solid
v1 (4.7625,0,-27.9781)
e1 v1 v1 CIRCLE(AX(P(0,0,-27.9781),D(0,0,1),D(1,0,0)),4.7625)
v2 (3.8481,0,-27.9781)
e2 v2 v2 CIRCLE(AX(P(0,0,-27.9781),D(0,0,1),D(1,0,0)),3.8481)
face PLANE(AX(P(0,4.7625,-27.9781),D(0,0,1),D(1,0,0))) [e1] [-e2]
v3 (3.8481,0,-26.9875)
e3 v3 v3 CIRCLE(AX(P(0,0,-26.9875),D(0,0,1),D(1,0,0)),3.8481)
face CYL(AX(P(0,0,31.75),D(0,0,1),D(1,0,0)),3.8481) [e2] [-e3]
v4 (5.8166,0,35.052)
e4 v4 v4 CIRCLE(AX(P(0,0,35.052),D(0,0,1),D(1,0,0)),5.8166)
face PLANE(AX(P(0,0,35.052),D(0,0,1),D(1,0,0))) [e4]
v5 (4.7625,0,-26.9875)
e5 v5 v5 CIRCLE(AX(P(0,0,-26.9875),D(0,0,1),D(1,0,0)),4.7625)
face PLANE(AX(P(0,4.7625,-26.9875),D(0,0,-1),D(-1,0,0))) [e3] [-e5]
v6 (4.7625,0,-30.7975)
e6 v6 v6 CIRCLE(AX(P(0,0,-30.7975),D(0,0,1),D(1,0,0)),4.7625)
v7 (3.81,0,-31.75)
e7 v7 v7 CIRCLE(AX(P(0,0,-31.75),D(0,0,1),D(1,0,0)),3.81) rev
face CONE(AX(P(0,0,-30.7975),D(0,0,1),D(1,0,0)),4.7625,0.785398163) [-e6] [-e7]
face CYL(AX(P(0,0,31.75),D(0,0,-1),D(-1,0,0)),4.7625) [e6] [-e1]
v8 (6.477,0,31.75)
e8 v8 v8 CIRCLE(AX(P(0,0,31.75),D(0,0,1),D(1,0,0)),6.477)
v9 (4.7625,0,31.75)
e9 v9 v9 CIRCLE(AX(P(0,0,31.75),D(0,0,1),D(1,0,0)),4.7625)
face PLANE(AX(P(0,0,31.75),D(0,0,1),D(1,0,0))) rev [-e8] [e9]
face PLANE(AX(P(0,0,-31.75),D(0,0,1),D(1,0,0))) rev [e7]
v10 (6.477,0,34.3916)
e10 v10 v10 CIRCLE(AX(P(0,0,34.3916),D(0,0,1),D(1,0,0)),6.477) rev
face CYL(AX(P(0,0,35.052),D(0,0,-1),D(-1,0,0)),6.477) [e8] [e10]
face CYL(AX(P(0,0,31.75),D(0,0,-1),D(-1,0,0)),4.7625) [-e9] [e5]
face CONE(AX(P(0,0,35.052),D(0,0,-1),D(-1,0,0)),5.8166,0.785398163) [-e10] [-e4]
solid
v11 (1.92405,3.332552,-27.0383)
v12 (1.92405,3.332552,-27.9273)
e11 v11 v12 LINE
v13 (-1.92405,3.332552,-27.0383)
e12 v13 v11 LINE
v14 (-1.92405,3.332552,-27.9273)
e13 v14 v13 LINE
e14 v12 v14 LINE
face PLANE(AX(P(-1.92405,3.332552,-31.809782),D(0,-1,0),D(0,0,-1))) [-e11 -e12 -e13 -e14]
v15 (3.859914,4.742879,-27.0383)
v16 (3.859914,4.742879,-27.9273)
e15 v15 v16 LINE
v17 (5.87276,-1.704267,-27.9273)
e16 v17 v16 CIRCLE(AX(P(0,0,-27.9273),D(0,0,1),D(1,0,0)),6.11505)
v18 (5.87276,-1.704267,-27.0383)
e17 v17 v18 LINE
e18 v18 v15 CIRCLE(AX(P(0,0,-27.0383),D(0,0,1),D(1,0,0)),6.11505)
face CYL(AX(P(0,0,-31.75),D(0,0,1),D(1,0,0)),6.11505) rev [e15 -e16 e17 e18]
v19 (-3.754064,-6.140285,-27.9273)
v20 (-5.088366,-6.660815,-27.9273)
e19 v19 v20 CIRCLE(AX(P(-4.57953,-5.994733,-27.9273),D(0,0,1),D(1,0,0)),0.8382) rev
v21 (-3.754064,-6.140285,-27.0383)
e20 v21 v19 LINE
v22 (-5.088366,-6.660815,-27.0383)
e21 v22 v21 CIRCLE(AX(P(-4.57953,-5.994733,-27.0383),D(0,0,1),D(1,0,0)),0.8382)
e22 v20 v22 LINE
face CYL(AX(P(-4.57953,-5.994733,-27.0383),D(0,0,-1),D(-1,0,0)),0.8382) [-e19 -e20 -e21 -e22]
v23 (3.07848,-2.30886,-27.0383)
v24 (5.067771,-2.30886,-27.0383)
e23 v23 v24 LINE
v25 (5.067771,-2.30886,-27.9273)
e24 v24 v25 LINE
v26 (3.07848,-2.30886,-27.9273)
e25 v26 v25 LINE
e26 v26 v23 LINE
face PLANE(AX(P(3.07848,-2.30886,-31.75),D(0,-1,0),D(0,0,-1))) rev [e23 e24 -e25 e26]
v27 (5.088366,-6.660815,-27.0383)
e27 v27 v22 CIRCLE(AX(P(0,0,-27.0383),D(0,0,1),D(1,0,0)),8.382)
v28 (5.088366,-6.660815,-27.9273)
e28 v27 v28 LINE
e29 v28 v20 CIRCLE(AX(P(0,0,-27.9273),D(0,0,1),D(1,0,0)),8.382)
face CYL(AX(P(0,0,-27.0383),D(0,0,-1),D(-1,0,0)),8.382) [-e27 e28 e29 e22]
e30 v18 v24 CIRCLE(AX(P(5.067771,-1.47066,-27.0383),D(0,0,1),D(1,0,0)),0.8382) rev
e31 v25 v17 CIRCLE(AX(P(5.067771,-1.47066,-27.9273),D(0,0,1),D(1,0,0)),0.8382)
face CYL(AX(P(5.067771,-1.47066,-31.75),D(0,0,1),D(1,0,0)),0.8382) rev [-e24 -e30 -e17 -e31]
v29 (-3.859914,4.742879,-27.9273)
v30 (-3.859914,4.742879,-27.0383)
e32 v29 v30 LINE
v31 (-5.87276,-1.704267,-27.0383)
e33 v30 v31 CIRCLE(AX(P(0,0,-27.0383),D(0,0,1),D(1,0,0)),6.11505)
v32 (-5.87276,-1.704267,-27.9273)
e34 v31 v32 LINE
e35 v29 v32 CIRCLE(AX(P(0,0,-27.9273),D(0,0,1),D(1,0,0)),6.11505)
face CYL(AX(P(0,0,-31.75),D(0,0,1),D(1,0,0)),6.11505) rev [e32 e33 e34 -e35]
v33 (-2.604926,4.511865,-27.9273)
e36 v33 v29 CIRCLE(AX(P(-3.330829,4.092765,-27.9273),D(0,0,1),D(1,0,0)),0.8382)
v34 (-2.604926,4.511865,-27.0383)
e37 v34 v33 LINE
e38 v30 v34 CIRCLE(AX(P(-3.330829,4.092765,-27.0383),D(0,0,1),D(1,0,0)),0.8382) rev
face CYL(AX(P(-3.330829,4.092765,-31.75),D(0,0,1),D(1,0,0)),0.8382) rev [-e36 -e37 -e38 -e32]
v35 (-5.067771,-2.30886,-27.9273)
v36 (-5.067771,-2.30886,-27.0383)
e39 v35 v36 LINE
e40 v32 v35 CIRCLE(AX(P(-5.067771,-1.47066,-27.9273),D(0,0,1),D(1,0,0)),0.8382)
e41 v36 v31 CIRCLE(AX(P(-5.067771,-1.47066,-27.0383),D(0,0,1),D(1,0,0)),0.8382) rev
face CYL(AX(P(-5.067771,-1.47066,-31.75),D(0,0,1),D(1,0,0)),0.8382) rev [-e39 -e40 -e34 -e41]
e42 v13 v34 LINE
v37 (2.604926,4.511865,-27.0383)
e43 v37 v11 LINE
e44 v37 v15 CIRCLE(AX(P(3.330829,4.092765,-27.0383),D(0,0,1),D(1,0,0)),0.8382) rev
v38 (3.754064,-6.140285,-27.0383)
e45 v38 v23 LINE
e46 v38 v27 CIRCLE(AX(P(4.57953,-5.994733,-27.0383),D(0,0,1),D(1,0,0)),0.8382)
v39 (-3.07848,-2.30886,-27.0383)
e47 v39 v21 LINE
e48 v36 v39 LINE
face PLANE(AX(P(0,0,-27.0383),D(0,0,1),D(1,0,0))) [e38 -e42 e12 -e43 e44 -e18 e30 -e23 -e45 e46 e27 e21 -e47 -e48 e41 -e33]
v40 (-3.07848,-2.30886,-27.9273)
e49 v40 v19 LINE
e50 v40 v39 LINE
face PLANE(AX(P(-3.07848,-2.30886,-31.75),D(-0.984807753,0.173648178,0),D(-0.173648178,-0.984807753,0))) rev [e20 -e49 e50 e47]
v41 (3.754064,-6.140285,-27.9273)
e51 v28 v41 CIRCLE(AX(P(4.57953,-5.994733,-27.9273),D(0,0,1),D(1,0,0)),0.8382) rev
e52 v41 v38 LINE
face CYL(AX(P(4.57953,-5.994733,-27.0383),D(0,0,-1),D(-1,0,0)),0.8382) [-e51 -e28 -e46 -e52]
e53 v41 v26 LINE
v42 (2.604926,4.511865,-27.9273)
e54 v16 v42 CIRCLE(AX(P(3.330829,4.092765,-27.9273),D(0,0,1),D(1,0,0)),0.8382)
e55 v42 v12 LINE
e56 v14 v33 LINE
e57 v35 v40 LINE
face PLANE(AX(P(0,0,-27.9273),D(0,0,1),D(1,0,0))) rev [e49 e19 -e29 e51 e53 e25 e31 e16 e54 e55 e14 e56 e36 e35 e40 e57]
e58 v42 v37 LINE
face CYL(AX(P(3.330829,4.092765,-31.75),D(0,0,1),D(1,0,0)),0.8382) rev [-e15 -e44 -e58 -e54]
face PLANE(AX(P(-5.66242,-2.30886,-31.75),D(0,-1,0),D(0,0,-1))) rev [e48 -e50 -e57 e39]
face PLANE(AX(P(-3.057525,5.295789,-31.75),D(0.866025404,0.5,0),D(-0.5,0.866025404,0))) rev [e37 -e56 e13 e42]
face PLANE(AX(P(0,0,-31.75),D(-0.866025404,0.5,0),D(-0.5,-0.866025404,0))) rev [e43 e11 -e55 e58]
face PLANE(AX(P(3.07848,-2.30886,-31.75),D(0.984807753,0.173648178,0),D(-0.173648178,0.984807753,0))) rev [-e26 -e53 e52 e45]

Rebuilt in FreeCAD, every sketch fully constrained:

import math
import FreeCAD as App
import Part
import Sketcher
Q = App.Units.Quantity


def edges_at(feature, points):
    """Names of the edges that pass closest to the given points."""
    edges = feature.Shape.Edges
    near = lambda p: min(range(len(edges)), key=lambda i: edges[i].distToShape(Part.Vertex(*p))[0])
    return sorted({f"Edge{near(p) + 1}" for p in points})

doc = App.newDocument("Part")
params = doc.addObject("Spreadsheet::Sheet", "Params")
for row, (alias, value) in enumerate([
    ("sketch1_diameter", "0.375 in"),
    ("pad1_length", "2.5 in"),
    ("sketch2_width", "0.036 in"),
    ("sketch2_height", "0.039 in"),
    ("groove_angle", "360 deg"),
    ("sketch3_diameter", "0.51 in"),
    ("pad2_length", "0.13 in"),
    ("chamfer_size", "0.026 in"),
    ("chamfer2_size", "0.0375 in"),
    ("sketch4_diameter", "0.66 in"),
    ("sketch4_diameter2", "0.303 in"),
    ("pad3_length", "0.035 in"),
    ("sketch5_radius", "0.33 in"),
    ("pad4_length", "0.035 in"),
    ("fillet_radius", "0.033 in"),
], start=1):
    params.set(f"A{row}", alias)
    params.set(f"B{row}", "=" + value)
    params.setAlias(f"B{row}", alias)

body = doc.addObject("PartDesign::Body", "Body")

# Sketch on XY plane
sketch1 = doc.addObject("Sketcher::SketchObject", "Sketch")
body.addObject(sketch1)
sketch1.AttachmentSupport = (doc.XY_Plane, [""])
sketch1.MapMode = "FlatFace"
sketch1.addGeometry(Part.Circle(App.Vector(0, 0, 0), App.Vector(0, 0, 1), 4.7625), False)
sketch1.addConstraint(Sketcher.Constraint("Coincident", 0, 3, -1, 1))
sketch1.addConstraint(Sketcher.Constraint("Diameter", 0, Q("0.375 in")))
sketch1.setExpression("Constraints[1]", "Params.sketch1_diameter")
pad1 = doc.addObject("PartDesign::Pad", "Pad")
body.addObject(pad1)
pad1.Profile = sketch1
pad1.setExpression("Length", "Params.pad1_length")
pad1.Midplane = True

# Sketch on YZ plane
sketch2 = doc.addObject("Sketcher::SketchObject", "Sketch001")
body.addObject(sketch2)
sketch2.AttachmentSupport = (doc.YZ_Plane, [""])
sketch2.MapMode = "FlatFace"
sketch2.addGeometry(Part.LineSegment(App.Vector(4.7625, -26.9875, 0), App.Vector(3.8481, -26.9875, 0)), False)
sketch2.addGeometry(Part.LineSegment(App.Vector(3.8481, -26.9875, 0), App.Vector(3.8481, -27.9781, 0)), False)
sketch2.addGeometry(Part.LineSegment(App.Vector(3.8481, -27.9781, 0), App.Vector(4.7625, -27.9781, 0)), False)
sketch2.addGeometry(Part.LineSegment(App.Vector(4.7625, -27.9781, 0), App.Vector(4.7625, -26.9875, 0)), False)
sketch2.addConstraint(Sketcher.Constraint("Coincident", 0, 2, 1, 1))
sketch2.addConstraint(Sketcher.Constraint("Coincident", 1, 2, 2, 1))
sketch2.addConstraint(Sketcher.Constraint("Coincident", 2, 2, 3, 1))
sketch2.addConstraint(Sketcher.Constraint("Coincident", 3, 2, 0, 1))
sketch2.addConstraint(Sketcher.Constraint("Horizontal", 0))
sketch2.addConstraint(Sketcher.Constraint("Vertical", 1))
sketch2.addConstraint(Sketcher.Constraint("Horizontal", 2))
sketch2.addConstraint(Sketcher.Constraint("Vertical", 3))
sketch2.addConstraint(Sketcher.Constraint("DistanceX", 0, 2, 0, 1, Q("0.036 in")))
sketch2.addConstraint(Sketcher.Constraint("DistanceY", 1, 2, 1, 1, Q("0.039 in")))
sketch2.addConstraint(Sketcher.Constraint("DistanceY", 0, 2, -1, 1, Q("1.0625 in")))
sketch2.addConstraint(Sketcher.Constraint("DistanceX", -1, 1, 2, 2, Q("0.1875 in")))
sketch2.setExpression("Constraints[8]", "Params.sketch2_width")
sketch2.setExpression("Constraints[9]", "Params.sketch2_height")
groove = doc.addObject("PartDesign::Groove", "Groove")
body.addObject(groove)
groove.Profile = sketch2
groove.ReferenceAxis = (sketch2, ["V_Axis"])
groove.setExpression("Angle", "Params.groove_angle")

# Sketch on XY plane
sketch3 = doc.addObject("Sketcher::SketchObject", "Sketch002")
body.addObject(sketch3)
sketch3.AttachmentSupport = (doc.XY_Plane, [""])
sketch3.MapMode = "FlatFace"
sketch3.AttachmentOffset = App.Placement(App.Vector(0, 0, 1.25 * 25.4), App.Rotation())
sketch3.addGeometry(Part.Circle(App.Vector(0, 0, 0), App.Vector(0, 0, 1), 6.477), False)
sketch3.addConstraint(Sketcher.Constraint("Coincident", 0, 3, -1, 1))
sketch3.addConstraint(Sketcher.Constraint("Diameter", 0, Q("0.51 in")))
sketch3.setExpression("Constraints[1]", "Params.sketch3_diameter")
pad2 = doc.addObject("PartDesign::Pad", "Pad001")
body.addObject(pad2)
pad2.Profile = sketch3
pad2.setExpression("Length", "Params.pad2_length")
doc.recompute()

chamfer = doc.addObject("PartDesign::Chamfer", "Chamfer")
body.addObject(chamfer)
chamfer.Base = (pad2, edges_at(pad2, [(-6.477, 0, 35.052)]))
chamfer.setExpression("Size", "Params.chamfer_size")
doc.recompute()

chamfer2 = doc.addObject("PartDesign::Chamfer", "Chamfer001")
body.addObject(chamfer2)
chamfer2.Base = (chamfer, edges_at(chamfer, [(-4.763, 0, -31.75)]))
chamfer2.setExpression("Size", "Params.chamfer2_size")
body2 = doc.addObject("PartDesign::Body", "Body001")

# Sketch on XY plane
sketch4 = doc.addObject("Sketcher::SketchObject", "Sketch003")
body2.addObject(sketch4)
sketch4.AttachmentSupport = (doc.getObject("XY_Plane001"), [""])
sketch4.MapMode = "FlatFace"
sketch4.AttachmentOffset = App.Placement(App.Vector(0, 0, -1.082 * 25.4), App.Rotation())
sketch4.addGeometry(Part.Circle(App.Vector(0, 0, 0), App.Vector(0, 0, 1), 8.382), False)
sketch4.addGeometry(Part.Circle(App.Vector(0, 0, 0), App.Vector(0, 0, 1), 3.8481), False)
sketch4.addConstraint(Sketcher.Constraint("Coincident", 0, 3, -1, 1))
sketch4.addConstraint(Sketcher.Constraint("Coincident", 1, 3, -1, 1))
sketch4.addConstraint(Sketcher.Constraint("Diameter", 0, Q("0.66 in")))
sketch4.addConstraint(Sketcher.Constraint("Diameter", 1, Q("0.303 in")))
sketch4.setExpression("Constraints[2]", "Params.sketch4_diameter")
sketch4.setExpression("Constraints[3]", "Params.sketch4_diameter2")
pad3 = doc.addObject("PartDesign::Pad", "Pad002")
body2.addObject(pad3)
pad3.Profile = sketch4
pad3.setExpression("Length", "Params.pad3_length")
pad3.Midplane = True

# Sketch on XY plane
sketch5 = doc.addObject("Sketcher::SketchObject", "Sketch004")
body2.addObject(sketch5)
sketch5.AttachmentSupport = (doc.getObject("XY_Plane001"), [""])
sketch5.MapMode = "FlatFace"
sketch5.addGeometry(Part.LineSegment(App.Vector(0, 0, 0), App.Vector(-3.057525, 5.295789, 0)), False)
sketch5.addGeometry(Part.ArcOfCircle(Part.Circle(App.Vector(0, 0, 0), App.Vector(0, 0, 1), 6.11505), math.radians(120), math.radians(202.18325)), False)
sketch5.addGeometry(Part.LineSegment(App.Vector(-5.66242, -2.30886, 0), App.Vector(-3.07848, -2.30886, 0)), False)
sketch5.addGeometry(Part.LineSegment(App.Vector(-3.07848, -2.30886, 0), App.Vector(-3.972784, -7.380712, 0)), False)
sketch5.addGeometry(Part.ArcOfCircle(Part.Circle(App.Vector(0, 0, 0), App.Vector(0, 0, 1), 8.382), math.radians(-118.292058), math.radians(-61.707942)), False)
sketch5.addGeometry(Part.LineSegment(App.Vector(3.972784, -7.380712, 0), App.Vector(3.07848, -2.30886, 0)), False)
sketch5.addGeometry(Part.LineSegment(App.Vector(3.07848, -2.30886, 0), App.Vector(5.66242, -2.30886, 0)), False)
sketch5.addGeometry(Part.ArcOfCircle(Part.Circle(App.Vector(0, 0, 0), App.Vector(0, 0, 1), 6.11505), math.radians(-22.18325), math.radians(60)), False)
sketch5.addGeometry(Part.LineSegment(App.Vector(3.057525, 5.295789, 0), App.Vector(0, 0, 0)), False)
sketch5.addConstraint(Sketcher.Constraint("Coincident", 0, 2, 1, 1))
sketch5.addConstraint(Sketcher.Constraint("Coincident", 1, 2, 2, 1))
sketch5.addConstraint(Sketcher.Constraint("Coincident", 2, 2, 3, 1))
sketch5.addConstraint(Sketcher.Constraint("Coincident", 3, 2, 4, 1))
sketch5.addConstraint(Sketcher.Constraint("Coincident", 4, 2, 5, 1))
sketch5.addConstraint(Sketcher.Constraint("Coincident", 5, 2, 6, 1))
sketch5.addConstraint(Sketcher.Constraint("Coincident", 6, 2, 7, 1))
sketch5.addConstraint(Sketcher.Constraint("Coincident", 7, 2, 8, 1))
sketch5.addConstraint(Sketcher.Constraint("Coincident", 8, 2, 0, 1))
sketch5.addConstraint(Sketcher.Constraint("Horizontal", 2))
sketch5.addConstraint(Sketcher.Constraint("Horizontal", 6))
sketch5.addConstraint(Sketcher.Constraint("Coincident", 1, 3, -1, 1))
sketch5.addConstraint(Sketcher.Constraint("Coincident", 4, 3, -1, 1))
sketch5.addConstraint(Sketcher.Constraint("Coincident", 7, 3, -1, 1))
sketch5.addConstraint(Sketcher.Constraint("Coincident", 8, 2, -1, 1))
sketch5.addConstraint(Sketcher.Constraint("Equal", 1, 7))
sketch5.addConstraint(Sketcher.Constraint("Symmetric", 2, 2, 5, 2, -2))
sketch5.addConstraint(Sketcher.Constraint("Horizontal", 3, 2, 4, 2))
sketch5.addConstraint(Sketcher.Constraint("Horizontal", 0, 2, 7, 2))
sketch5.addConstraint(Sketcher.Constraint("Radius", 4, Q("0.33 in")))
sketch5.addConstraint(Sketcher.Constraint("Angle", 0, Q("120 deg")))
sketch5.addConstraint(Sketcher.Constraint("Angle", 3, Q("-100 deg")))
sketch5.addConstraint(Sketcher.Constraint("Radius", 1, Q("6.11505 mm")))
sketch5.addConstraint(Sketcher.Constraint("DistanceY", 1, 2, -1, 1, Q("0.0909 in")))
sketch5.addConstraint(Sketcher.Constraint("DistanceX", 2, 2, -1, 1, Q("0.1212 in")))
sketch5.setExpression("Constraints[19]", "Params.sketch5_radius")
pocket1 = doc.addObject("PartDesign::Pocket", "Pocket")
body2.addObject(pocket1)
pocket1.Profile = sketch5
pocket1.Type = "ThroughAll"

# Sketch on XY plane
sketch6 = doc.addObject("Sketcher::SketchObject", "Sketch005")
body2.addObject(sketch6)
sketch6.AttachmentSupport = (doc.getObject("XY_Plane001"), [""])
sketch6.MapMode = "FlatFace"
sketch6.AttachmentOffset = App.Placement(App.Vector(0, 0, -1.0645 * 25.4), App.Rotation())
sketch6.addGeometry(Part.LineSegment(App.Vector(-1.92405, 3.332552, 0), App.Vector(1.92405, 3.332552, 0)), False)
sketch6.addGeometry(Part.ArcOfCircle(Part.Circle(App.Vector(0, 0, 0), App.Vector(0, 0, 1), 3.8481), math.radians(60), math.radians(120)), False)
sketch6.addConstraint(Sketcher.Constraint("Coincident", 0, 1, 1, 2))
sketch6.addConstraint(Sketcher.Constraint("Coincident", 1, 1, 0, 2))
sketch6.addConstraint(Sketcher.Constraint("Horizontal", 0))
sketch6.addConstraint(Sketcher.Constraint("Coincident", 1, 3, -1, 1))
sketch6.addConstraint(Sketcher.Constraint("Radius", 1, Q("0.1515 in")))
sketch6.addConstraint(Sketcher.Constraint("DistanceX", 0, 1, 0, 2, Q("0.1515 in")))
pad4 = doc.addObject("PartDesign::Pad", "Pad003")
body2.addObject(pad4)
pad4.Profile = sketch6
pad4.setExpression("Length", "Params.pad4_length")
pad4.Reversed = True
doc.recompute()

fillet = doc.addObject("PartDesign::Fillet", "Fillet")
body2.addObject(fillet)
fillet.Base = (pad4, edges_at(pad4, [
    (3.058, 5.296, -27.483),
    (3.973, -7.381, -27.483),
    (-5.662, -2.309, -27.483),
    (5.662, -2.309, -27.483),
    (-3.973, -7.381, -27.483),
    (-3.058, 5.296, -27.483),
]))
fillet.setExpression("Radius", "Params.fillet_radius")

doc.recompute()
